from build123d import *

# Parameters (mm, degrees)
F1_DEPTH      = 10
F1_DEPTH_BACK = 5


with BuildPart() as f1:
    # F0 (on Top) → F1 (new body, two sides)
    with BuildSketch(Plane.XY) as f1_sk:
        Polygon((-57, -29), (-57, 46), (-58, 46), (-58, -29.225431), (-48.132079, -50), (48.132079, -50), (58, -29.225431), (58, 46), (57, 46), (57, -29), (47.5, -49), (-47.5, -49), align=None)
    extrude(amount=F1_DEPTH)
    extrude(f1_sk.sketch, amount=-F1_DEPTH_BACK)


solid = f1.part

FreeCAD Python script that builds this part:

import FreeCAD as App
import Part
import Sketcher

V = App.Vector
Q = App.Units.Quantity


def add_polygon(sketch, points):
    """Adds a closed chain of lines whose ends are joined by coincident constraints."""
    first, n = sketch.GeometryCount, len(points)
    for a, b in zip(points, points[1:] + points[:1]):
        sketch.addGeometry(Part.LineSegment(App.Vector(*a, 0), App.Vector(*b, 0)), False)
    for i in range(n):
        sketch.addConstraint(Sketcher.Constraint("Coincident", first + i, 2, first + (i + 1) % n, 1))

doc = App.newDocument("Part")
params = doc.addObject("Spreadsheet::Sheet", "Params")
for row, (alias, value) in enumerate([
    ("sketch1_width", "1 mm"),
    ("sketch1_width2", "95 mm"),
    ("sketch1_height", "75 mm"),
    ("pad1_length", "10 mm"),
    ("pad1_length2", "5 mm"),
], start=1):
    params.set(f"A{row}", alias)
    params.set(f"B{row}", "=" + value)
    params.setAlias(f"B{row}", alias)

body = doc.addObject("PartDesign::Body", "Body")

# Sketch on XY plane
sketch1 = body.newObject("Sketcher::SketchObject", "Sketch")
sketch1.AttachmentSupport = (doc.getObject("XY_Plane"), [""])
sketch1.MapMode = "FlatFace"
add_polygon(sketch1, [(-57, -29), (-57, 46), (-58, 46), (-58, -29.2), (-48.1, -50), (48.1, -50), (58, -29.2), (58, 46), (57, 46), (57, -29), (47.5, -49), (-47.5, -49)])  # lines 0-11
sketch1.addConstraint(Sketcher.Constraint("Vertical", 0))
sketch1.addConstraint(Sketcher.Constraint("Horizontal", 1))
sketch1.addConstraint(Sketcher.Constraint("Vertical", 2))
sketch1.addConstraint(Sketcher.Constraint("Horizontal", 4))
sketch1.addConstraint(Sketcher.Constraint("Vertical", 6))
sketch1.addConstraint(Sketcher.Constraint("Horizontal", 7))
sketch1.addConstraint(Sketcher.Constraint("Vertical", 8))
sketch1.addConstraint(Sketcher.Constraint("Horizontal", 10))
sketch1.addConstraint(Sketcher.Constraint("Symmetric", 2, 2, 5, 2, -2))
sketch1.addConstraint(Sketcher.Constraint("Symmetric", 0, 2, 7, 2, -2))
sketch1.addConstraint(Sketcher.Constraint("Parallel", 5, 9))
sketch1.addConstraint(Sketcher.Constraint("Parallel", 3, 11))
sketch1.addConstraint(Sketcher.Constraint("Horizontal", 8, 2, 11, 2))
sketch1.addConstraint(Sketcher.Constraint("Equal", 3, 5))
sketch1.addConstraint(Sketcher.Constraint("DistanceX", 1, 2, 1, 1, Q("1 mm")))
sketch1.addConstraint(Sketcher.Constraint("DistanceX", 10, 2, 10, 1, Q("95 mm")))
sketch1.addConstraint(Sketcher.Constraint("DistanceY", 0, 1, 0, 2, Q("75 mm")))
sketch1.addConstraint(Sketcher.Constraint("DistanceX", 0, 2, -1, 1, Q("57 mm")))
sketch1.addConstraint(Sketcher.Constraint("DistanceY", -1, 1, 0, 2, Q("46 mm")))
sketch1.addConstraint(Sketcher.Constraint("DistanceY", 3, 2, -1, 1, Q("50 mm")))
sketch1.addConstraint(Sketcher.Constraint("DistanceY", 9, 2, -1, 1, Q("49 mm")))
sketch1.addConstraint(Sketcher.Constraint("Distance", 3, Q("22.9991 mm")))
sketch1.setExpression("Constraints[26]", "Params.sketch1_width")
sketch1.setExpression("Constraints[27]", "Params.sketch1_width2")
sketch1.setExpression("Constraints[28]", "Params.sketch1_height")
pad1 = body.newObject("PartDesign::Pad", "Pad")
pad1.Profile = sketch1
pad1.Type = "TwoLengths"
pad1.setExpression("Length", "Params.pad1_length")
pad1.setExpression("Length2", "Params.pad1_length2")

doc.recompute()
